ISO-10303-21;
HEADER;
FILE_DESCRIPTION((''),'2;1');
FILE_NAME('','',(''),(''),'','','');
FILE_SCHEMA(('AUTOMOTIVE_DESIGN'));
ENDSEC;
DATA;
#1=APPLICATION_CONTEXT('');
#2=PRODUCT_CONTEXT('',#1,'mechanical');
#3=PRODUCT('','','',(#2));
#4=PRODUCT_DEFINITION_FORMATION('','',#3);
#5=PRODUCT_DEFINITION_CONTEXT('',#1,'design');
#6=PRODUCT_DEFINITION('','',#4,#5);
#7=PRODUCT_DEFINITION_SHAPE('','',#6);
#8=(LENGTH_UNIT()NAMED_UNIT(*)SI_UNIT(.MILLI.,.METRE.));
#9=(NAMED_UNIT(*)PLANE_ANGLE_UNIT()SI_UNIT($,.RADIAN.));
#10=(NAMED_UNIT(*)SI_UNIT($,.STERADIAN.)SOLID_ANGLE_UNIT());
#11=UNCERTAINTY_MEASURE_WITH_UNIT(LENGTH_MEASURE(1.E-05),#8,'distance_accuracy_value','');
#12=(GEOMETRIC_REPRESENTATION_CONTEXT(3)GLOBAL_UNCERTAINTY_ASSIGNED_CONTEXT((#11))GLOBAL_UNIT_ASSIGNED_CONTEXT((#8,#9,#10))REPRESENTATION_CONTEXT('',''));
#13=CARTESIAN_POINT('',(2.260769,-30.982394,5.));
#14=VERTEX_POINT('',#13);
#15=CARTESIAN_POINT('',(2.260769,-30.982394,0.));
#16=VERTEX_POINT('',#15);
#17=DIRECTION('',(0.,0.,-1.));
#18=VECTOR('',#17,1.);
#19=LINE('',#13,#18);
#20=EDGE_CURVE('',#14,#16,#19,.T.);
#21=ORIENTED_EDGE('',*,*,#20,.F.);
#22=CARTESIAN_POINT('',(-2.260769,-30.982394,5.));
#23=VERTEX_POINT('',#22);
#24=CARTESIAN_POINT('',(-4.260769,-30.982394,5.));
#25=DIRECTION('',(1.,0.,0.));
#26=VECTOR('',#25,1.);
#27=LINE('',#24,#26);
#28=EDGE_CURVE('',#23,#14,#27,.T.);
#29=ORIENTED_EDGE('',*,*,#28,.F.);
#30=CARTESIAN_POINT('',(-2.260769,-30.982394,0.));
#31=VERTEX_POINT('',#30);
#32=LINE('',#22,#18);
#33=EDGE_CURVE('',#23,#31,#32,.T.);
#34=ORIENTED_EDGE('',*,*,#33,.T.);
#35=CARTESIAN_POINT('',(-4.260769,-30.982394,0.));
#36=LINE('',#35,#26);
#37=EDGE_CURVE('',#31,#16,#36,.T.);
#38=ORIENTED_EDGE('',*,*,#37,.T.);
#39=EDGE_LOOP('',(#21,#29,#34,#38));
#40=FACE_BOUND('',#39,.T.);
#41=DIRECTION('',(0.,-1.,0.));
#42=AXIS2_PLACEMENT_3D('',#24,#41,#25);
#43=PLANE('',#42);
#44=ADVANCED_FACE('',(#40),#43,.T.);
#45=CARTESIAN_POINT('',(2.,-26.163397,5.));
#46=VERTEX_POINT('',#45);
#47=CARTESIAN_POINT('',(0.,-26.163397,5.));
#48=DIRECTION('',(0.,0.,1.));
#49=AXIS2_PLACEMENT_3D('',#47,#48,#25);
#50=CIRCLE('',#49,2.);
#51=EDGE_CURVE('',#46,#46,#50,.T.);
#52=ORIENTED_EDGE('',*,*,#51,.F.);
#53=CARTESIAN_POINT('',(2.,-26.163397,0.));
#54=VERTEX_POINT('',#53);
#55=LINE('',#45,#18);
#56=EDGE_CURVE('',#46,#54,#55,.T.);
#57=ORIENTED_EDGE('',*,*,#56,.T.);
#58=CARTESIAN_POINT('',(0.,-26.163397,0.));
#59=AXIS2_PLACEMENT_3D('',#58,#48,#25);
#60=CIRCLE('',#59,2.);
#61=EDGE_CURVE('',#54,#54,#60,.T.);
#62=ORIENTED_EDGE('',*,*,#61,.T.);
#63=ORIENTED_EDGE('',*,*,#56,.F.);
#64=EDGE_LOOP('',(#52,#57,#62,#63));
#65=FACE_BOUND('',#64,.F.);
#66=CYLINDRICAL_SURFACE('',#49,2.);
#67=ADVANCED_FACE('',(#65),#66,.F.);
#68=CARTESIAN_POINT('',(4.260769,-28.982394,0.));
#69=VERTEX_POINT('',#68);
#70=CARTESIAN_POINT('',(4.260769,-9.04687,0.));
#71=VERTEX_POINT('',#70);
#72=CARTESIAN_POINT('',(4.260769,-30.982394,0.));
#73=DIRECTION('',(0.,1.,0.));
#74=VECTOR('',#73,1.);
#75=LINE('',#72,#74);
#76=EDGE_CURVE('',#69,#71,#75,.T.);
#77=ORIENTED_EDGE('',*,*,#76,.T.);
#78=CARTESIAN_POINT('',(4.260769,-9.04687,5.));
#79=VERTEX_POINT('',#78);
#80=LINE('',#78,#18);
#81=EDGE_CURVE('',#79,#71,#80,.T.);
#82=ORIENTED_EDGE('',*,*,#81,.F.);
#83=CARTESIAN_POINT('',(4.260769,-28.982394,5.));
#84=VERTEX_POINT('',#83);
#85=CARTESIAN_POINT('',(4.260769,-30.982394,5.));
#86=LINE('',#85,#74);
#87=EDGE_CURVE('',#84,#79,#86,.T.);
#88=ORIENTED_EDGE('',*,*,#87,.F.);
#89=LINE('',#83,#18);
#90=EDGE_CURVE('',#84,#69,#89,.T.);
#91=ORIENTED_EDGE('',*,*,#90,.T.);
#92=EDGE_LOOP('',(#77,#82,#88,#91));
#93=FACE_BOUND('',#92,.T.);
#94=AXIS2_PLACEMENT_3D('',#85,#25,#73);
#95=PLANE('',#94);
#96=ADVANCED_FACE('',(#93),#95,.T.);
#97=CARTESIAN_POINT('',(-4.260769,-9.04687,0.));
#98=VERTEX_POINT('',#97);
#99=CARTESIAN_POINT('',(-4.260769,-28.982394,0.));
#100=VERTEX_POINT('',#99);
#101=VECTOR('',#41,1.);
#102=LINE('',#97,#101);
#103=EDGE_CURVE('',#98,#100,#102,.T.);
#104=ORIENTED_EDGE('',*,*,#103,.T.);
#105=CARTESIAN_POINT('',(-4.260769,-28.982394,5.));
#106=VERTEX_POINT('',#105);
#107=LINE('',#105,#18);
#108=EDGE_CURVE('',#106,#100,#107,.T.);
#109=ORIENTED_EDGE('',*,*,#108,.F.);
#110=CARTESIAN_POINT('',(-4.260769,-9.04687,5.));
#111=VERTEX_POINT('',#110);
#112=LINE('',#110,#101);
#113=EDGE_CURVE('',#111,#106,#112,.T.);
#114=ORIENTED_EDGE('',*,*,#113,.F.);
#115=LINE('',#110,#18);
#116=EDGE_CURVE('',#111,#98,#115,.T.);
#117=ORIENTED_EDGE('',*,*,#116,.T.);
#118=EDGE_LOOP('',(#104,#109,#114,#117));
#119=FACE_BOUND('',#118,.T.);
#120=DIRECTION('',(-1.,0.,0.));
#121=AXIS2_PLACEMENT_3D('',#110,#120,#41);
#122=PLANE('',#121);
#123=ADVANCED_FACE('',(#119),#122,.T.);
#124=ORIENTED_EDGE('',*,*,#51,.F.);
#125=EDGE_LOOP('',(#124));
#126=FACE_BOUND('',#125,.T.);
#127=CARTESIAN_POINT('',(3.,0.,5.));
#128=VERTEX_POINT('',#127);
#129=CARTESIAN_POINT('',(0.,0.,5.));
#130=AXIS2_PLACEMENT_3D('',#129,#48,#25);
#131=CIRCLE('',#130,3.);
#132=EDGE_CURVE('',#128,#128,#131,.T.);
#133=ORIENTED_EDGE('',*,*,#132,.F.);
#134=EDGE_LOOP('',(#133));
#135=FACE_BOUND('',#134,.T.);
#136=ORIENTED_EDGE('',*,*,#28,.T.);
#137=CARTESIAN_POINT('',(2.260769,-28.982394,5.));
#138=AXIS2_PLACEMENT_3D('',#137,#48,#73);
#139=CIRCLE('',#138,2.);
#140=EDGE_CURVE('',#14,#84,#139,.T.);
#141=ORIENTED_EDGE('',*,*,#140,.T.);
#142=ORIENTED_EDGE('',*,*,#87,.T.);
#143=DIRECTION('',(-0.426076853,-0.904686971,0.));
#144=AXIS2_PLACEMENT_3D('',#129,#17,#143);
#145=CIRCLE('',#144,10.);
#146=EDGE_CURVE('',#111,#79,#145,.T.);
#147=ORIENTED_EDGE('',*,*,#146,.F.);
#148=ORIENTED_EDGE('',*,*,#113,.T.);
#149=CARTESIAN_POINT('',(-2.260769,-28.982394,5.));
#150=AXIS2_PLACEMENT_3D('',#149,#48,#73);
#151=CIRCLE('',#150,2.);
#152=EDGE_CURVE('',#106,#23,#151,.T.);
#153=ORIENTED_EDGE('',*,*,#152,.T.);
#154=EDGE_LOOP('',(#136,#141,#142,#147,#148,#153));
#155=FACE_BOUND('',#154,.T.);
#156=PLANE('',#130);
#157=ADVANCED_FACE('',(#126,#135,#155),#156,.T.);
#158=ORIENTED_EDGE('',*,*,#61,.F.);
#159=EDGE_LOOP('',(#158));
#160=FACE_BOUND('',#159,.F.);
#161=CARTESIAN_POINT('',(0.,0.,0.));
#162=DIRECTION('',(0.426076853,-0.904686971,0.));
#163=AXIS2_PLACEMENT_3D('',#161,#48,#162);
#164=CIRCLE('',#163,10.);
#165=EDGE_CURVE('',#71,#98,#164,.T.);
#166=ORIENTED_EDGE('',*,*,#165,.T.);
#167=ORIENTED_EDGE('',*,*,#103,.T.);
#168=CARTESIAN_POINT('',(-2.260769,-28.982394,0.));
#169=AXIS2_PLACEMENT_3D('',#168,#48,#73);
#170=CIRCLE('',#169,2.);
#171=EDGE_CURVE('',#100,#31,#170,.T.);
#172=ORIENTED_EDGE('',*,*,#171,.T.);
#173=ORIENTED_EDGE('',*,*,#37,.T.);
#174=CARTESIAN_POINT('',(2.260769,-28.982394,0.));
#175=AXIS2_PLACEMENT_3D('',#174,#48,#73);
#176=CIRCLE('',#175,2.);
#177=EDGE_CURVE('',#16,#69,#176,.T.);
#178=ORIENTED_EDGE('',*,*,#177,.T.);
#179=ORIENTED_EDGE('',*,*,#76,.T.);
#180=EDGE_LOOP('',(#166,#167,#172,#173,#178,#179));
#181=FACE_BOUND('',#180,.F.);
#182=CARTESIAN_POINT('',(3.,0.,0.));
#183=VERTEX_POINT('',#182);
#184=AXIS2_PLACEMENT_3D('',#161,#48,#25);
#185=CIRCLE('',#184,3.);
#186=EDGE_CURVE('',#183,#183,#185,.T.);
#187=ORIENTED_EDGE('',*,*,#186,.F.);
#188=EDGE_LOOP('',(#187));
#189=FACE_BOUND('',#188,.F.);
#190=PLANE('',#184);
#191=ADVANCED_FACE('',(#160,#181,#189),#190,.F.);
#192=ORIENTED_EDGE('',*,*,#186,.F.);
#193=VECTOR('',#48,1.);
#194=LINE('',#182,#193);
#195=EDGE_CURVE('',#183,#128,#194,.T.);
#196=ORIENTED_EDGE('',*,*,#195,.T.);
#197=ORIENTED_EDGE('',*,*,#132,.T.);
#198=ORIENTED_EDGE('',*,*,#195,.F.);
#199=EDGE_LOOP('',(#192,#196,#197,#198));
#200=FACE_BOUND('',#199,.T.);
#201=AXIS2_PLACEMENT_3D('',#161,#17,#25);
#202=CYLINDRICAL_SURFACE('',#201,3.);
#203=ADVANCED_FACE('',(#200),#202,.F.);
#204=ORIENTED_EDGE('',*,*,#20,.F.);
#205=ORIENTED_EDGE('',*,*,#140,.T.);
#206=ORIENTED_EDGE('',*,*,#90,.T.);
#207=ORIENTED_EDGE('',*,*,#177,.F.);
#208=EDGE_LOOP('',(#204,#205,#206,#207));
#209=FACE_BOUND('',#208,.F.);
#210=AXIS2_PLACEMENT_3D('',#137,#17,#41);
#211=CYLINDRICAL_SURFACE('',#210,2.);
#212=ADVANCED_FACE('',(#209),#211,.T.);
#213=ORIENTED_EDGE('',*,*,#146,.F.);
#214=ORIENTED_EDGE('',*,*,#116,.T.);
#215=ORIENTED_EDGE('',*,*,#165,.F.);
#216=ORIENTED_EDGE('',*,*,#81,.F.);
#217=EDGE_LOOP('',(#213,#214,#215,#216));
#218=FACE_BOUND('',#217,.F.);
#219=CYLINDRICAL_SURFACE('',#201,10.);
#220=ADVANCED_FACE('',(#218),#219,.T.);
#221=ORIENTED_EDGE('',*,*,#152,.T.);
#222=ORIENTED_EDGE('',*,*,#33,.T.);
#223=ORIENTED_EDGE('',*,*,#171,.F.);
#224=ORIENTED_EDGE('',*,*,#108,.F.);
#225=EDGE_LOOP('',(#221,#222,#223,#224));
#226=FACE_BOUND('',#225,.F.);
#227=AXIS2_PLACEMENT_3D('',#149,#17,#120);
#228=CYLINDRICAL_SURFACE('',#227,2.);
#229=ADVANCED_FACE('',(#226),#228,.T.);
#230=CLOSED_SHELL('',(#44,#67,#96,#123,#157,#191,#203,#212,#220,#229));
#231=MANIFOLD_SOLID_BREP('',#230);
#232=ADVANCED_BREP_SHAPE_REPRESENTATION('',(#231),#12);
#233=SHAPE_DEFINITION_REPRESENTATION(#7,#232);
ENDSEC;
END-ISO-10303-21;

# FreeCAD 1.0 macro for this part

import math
import FreeCAD as App
import Part
import Sketcher
Q = App.Units.Quantity


def edges_at(feature, points):
    """Names of the edges that pass closest to the given points."""
    edges = feature.Shape.Edges
    near = lambda p: min(range(len(edges)), key=lambda i: edges[i].distToShape(Part.Vertex(*p))[0])
    return sorted({f"Edge{near(p) + 1}" for p in points})

doc = App.newDocument("Part")
params = doc.addObject("Spreadsheet::Sheet", "Params")
for row, (alias, value) in enumerate([
    ("sketch1_diameter", "20 mm"),
    ("sketch1_diameter2", "6 mm"),
    ("pad1_length", "5 mm"),
    ("sketch2_radius", "10 mm"),
    ("pad2_length", "5 mm"),
    ("fillet_radius", "2 mm"),
    ("sketch3_diameter", "4 mm"),
], start=1):
    params.set(f"A{row}", alias)
    params.set(f"B{row}", "=" + value)
    params.setAlias(f"B{row}", alias)

body = doc.addObject("PartDesign::Body", "Body")

# Sketch on XY plane
sketch1 = body.newObject("Sketcher::SketchObject", "Sketch")
sketch1.AttachmentSupport = (doc.getObject("XY_Plane"), [""])
sketch1.MapMode = "FlatFace"
sketch1.addGeometry(Part.Circle(App.Vector(0, 0, 0), App.Vector(0, 0, 1), 10), False)
sketch1.addGeometry(Part.Circle(App.Vector(0, 0, 0), App.Vector(0, 0, 1), 3), False)
sketch1.addConstraint(Sketcher.Constraint("Coincident", 0, 3, -1, 1))
sketch1.addConstraint(Sketcher.Constraint("Coincident", 1, 3, -1, 1))
sketch1.addConstraint(Sketcher.Constraint("Diameter", 0, Q("20 mm")))
sketch1.addConstraint(Sketcher.Constraint("Diameter", 1, Q("6 mm")))
sketch1.setExpression("Constraints[2]", "Params.sketch1_diameter")
sketch1.setExpression("Constraints[3]", "Params.sketch1_diameter2")
pad1 = body.newObject("PartDesign::Pad", "Pad")
pad1.Profile = sketch1
pad1.setExpression("Length", "Params.pad1_length")

# Sketch on XY plane
sketch2 = body.newObject("Sketcher::SketchObject", "Sketch001")
sketch2.AttachmentSupport = (doc.getObject("XY_Plane"), [""])
sketch2.MapMode = "FlatFace"
sketch2.AttachmentOffset = App.Placement(App.Vector(0, 0, 5), App.Rotation())
sketch2.addGeometry(Part.LineSegment(App.Vector(4, -31, 0), App.Vector(4, -9, 0)), False)
sketch2.addGeometry(Part.ArcOfCircle(Part.Circle(App.Vector(0, 0, 0), App.Vector(0, 0, 1), 10), math.radians(-115), math.radians(-65)), False)
sketch2.addGeometry(Part.LineSegment(App.Vector(-4, -9, 0), App.Vector(-4, -31, 0)), False)
sketch2.addGeometry(Part.LineSegment(App.Vector(-4, -31, 0), App.Vector(4, -31, 0)), False)
sketch2.addConstraint(Sketcher.Constraint("Coincident", 0, 2, 1, 2))
sketch2.addConstraint(Sketcher.Constraint("Coincident", 1, 1, 2, 1))
sketch2.addConstraint(Sketcher.Constraint("Coincident", 2, 2, 3, 1))
sketch2.addConstraint(Sketcher.Constraint("Coincident", 3, 2, 0, 1))
sketch2.addConstraint(Sketcher.Constraint("Vertical", 0))
sketch2.addConstraint(Sketcher.Constraint("Vertical", 2))
sketch2.addConstraint(Sketcher.Constraint("Horizontal", 3))
sketch2.addConstraint(Sketcher.Constraint("Coincident", 1, 3, -1, 1))
sketch2.addConstraint(Sketcher.Constraint("Horizontal", 0, 2, 1, 1))
sketch2.addConstraint(Sketcher.Constraint("Radius", 1, Q("10 mm")))
sketch2.addConstraint(Sketcher.Constraint("DistanceX", 3, 1, 3, 2, Q("8.521537 mm")))
sketch2.addConstraint(Sketcher.Constraint("DistanceY", 0, 1, 0, 2, Q("21.935524 mm")))
sketch2.setExpression("Constraints[9]", "Params.sketch2_radius")
pad2 = body.newObject("PartDesign::Pad", "Pad001")
pad2.Profile = sketch2
pad2.setExpression("Length", "Params.pad2_length")
pad2.Reversed = True
doc.recompute()

fillet = body.newObject("PartDesign::Fillet", "Fillet")
fillet.Base = (pad2, edges_at(pad2, [(-4.261, -30.982, 2.5), (4.261, -30.982, 2.5)]))
fillet.setExpression("Radius", "Params.fillet_radius")

# Sketch on XY plane
sketch3 = body.newObject("Sketcher::SketchObject", "Sketch002")
sketch3.AttachmentSupport = (doc.getObject("XY_Plane"), [""])
sketch3.MapMode = "FlatFace"
sketch3.AttachmentOffset = App.Placement(App.Vector(0, 0, 5), App.Rotation())
sketch3.addGeometry(Part.Circle(App.Vector(0, -26.2, 0), App.Vector(0, 0, 1), 2), False)
sketch3.addConstraint(Sketcher.Constraint("PointOnObject", 0, 3, -2))
sketch3.addConstraint(Sketcher.Constraint("Diameter", 0, Q("4 mm")))
sketch3.addConstraint(Sketcher.Constraint("DistanceY", 0, 3, -1, 1, Q("26.163397 mm")))
sketch3.setExpression("Constraints[1]", "Params.sketch3_diameter")
pocket1 = body.newObject("PartDesign::Pocket", "Pocket")
pocket1.Profile = sketch3
pocket1.Type = "ThroughAll"

doc.recompute()
